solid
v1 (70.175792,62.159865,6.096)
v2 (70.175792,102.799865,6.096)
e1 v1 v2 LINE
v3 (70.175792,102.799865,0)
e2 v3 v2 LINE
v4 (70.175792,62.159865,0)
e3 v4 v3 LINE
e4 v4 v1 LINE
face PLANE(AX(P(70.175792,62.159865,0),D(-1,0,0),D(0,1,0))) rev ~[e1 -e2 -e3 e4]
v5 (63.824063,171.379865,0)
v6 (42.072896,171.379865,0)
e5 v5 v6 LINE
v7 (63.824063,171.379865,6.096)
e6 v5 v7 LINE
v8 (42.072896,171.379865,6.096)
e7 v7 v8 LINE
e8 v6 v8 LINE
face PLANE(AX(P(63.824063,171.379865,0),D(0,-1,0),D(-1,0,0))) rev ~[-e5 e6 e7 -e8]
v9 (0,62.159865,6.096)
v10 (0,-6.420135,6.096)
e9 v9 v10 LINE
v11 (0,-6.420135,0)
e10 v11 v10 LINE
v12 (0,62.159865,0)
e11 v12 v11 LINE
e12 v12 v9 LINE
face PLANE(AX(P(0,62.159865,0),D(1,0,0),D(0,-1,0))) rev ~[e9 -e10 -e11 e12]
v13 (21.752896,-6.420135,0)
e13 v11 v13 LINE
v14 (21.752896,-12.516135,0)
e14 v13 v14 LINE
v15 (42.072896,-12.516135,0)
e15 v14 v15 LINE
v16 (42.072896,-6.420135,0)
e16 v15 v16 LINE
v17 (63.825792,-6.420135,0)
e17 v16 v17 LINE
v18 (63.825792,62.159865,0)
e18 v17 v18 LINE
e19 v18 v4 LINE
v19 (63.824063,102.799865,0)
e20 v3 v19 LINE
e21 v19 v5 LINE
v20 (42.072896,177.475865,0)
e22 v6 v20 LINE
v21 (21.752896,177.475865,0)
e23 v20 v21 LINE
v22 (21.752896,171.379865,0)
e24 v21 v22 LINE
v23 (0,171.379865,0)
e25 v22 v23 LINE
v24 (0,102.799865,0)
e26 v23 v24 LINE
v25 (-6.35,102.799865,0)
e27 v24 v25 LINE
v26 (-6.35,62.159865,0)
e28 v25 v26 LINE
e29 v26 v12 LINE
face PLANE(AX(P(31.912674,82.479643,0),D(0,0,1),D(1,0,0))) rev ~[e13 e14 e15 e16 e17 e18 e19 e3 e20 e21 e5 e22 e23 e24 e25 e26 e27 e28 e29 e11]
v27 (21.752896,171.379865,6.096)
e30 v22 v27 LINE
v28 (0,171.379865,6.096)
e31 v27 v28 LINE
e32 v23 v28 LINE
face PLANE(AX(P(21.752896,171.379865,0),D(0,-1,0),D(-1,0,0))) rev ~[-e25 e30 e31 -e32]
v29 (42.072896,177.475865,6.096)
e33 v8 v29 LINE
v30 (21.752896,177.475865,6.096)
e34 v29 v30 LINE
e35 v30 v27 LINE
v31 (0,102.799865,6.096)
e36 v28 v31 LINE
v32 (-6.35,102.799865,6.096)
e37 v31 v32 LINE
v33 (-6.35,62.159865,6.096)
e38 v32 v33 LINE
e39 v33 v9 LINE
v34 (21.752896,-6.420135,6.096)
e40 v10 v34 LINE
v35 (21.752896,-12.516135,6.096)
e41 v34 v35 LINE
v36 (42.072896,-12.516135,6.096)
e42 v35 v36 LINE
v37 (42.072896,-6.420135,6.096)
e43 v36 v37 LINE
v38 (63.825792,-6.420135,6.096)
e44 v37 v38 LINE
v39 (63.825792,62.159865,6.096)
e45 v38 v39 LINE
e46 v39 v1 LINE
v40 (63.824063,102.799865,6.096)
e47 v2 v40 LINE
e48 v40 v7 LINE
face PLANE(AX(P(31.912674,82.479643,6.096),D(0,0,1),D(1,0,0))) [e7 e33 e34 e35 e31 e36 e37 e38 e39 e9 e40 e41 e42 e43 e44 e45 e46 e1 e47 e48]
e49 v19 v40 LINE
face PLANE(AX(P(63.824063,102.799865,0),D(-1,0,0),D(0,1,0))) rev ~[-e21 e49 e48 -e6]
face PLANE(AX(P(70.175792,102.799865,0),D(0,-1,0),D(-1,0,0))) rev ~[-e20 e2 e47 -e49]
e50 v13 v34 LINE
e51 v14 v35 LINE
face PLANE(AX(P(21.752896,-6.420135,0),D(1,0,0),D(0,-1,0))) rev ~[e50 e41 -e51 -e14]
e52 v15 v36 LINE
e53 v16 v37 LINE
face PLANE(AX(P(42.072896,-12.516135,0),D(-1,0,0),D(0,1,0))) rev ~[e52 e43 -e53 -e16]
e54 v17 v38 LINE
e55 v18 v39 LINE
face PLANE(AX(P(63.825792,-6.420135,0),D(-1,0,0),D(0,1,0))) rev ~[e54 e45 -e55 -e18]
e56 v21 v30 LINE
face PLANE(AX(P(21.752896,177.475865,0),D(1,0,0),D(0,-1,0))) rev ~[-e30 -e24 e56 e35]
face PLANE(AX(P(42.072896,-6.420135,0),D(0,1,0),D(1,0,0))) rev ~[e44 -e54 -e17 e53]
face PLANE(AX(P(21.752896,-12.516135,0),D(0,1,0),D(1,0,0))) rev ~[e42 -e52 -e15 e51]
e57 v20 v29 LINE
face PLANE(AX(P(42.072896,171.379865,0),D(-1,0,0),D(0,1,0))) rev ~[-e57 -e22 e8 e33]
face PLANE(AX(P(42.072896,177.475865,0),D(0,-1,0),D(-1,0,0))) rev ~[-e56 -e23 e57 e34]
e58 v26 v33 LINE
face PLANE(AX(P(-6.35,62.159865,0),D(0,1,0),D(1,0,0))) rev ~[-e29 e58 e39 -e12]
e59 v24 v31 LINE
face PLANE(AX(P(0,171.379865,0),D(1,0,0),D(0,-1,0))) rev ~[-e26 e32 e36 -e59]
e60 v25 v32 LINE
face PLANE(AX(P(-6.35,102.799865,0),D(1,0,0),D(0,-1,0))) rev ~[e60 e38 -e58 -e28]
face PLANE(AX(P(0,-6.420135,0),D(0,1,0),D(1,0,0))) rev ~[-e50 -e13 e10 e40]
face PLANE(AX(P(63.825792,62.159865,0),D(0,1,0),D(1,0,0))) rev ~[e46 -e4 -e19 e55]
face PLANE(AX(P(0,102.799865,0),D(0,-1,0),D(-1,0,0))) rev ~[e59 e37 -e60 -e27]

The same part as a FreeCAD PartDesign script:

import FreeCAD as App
import Part
import Sketcher
Q = App.Units.Quantity

doc = App.newDocument("Part")
params = doc.addObject("Spreadsheet::Sheet", "Params")
for row, (alias, value) in enumerate([
    ("sketch1_width", "0.8 in"),
    ("sketch1_height", "1.6 in"),
    ("sketch1_height2", "2.7 in"),
    ("sketch1_width2", "0.25 in"),
    ("sketch1_height3", "0.24 in"),
    ("pad1_length", "0.24 in"),
], start=1):
    params.set(f"A{row}", alias)
    params.set(f"B{row}", "=" + value)
    params.setAlias(f"B{row}", alias)

body = doc.addObject("PartDesign::Body", "Body")

sketch1 = doc.addObject("Sketcher::SketchObject", "Sketch")
body.addObject(sketch1)
sketch1.AttachmentSupport = (doc.XY_Plane, [""])
sketch1.MapMode = "FlatFace"
sketch1.addGeometry(Part.LineSegment(App.Vector(0, 103, 0), App.Vector(-6, 103, 0)), False)
sketch1.addGeometry(Part.LineSegment(App.Vector(-6, 103, 0), App.Vector(-6, 62, 0)), False)
sketch1.addGeometry(Part.LineSegment(App.Vector(-6, 62, 0), App.Vector(0, 62, 0)), False)
sketch1.addGeometry(Part.LineSegment(App.Vector(0, 62, 0), App.Vector(0, -6, 0)), False)
sketch1.addGeometry(Part.LineSegment(App.Vector(0, -6, 0), App.Vector(22, -6, 0)), False)
sketch1.addGeometry(Part.LineSegment(App.Vector(22, -6, 0), App.Vector(22, -13, 0)), False)
sketch1.addGeometry(Part.LineSegment(App.Vector(22, -13, 0), App.Vector(42, -13, 0)), False)
sketch1.addGeometry(Part.LineSegment(App.Vector(42, -13, 0), App.Vector(42, -6, 0)), False)
sketch1.addGeometry(Part.LineSegment(App.Vector(42, -6, 0), App.Vector(64, -6, 0)), False)
sketch1.addGeometry(Part.LineSegment(App.Vector(64, -6, 0), App.Vector(64, 62, 0)), False)
sketch1.addGeometry(Part.LineSegment(App.Vector(64, 62, 0), App.Vector(70, 62, 0)), False)
sketch1.addGeometry(Part.LineSegment(App.Vector(70, 62, 0), App.Vector(70, 103, 0)), False)
sketch1.addGeometry(Part.LineSegment(App.Vector(70, 103, 0), App.Vector(64, 103, 0)), False)
sketch1.addGeometry(Part.LineSegment(App.Vector(64, 103, 0), App.Vector(64, 171, 0)), False)
sketch1.addGeometry(Part.LineSegment(App.Vector(64, 171, 0), App.Vector(42, 171, 0)), False)
sketch1.addGeometry(Part.LineSegment(App.Vector(42, 171, 0), App.Vector(42, 177, 0)), False)
sketch1.addGeometry(Part.LineSegment(App.Vector(42, 177, 0), App.Vector(22, 177, 0)), False)
sketch1.addGeometry(Part.LineSegment(App.Vector(22, 177, 0), App.Vector(22, 171, 0)), False)
sketch1.addGeometry(Part.LineSegment(App.Vector(22, 171, 0), App.Vector(0, 171, 0)), False)
sketch1.addGeometry(Part.LineSegment(App.Vector(0, 171, 0), App.Vector(0, 103, 0)), False)
sketch1.addConstraint(Sketcher.Constraint("Coincident", 0, 2, 1, 1))
sketch1.addConstraint(Sketcher.Constraint("Coincident", 1, 2, 2, 1))
sketch1.addConstraint(Sketcher.Constraint("Coincident", 2, 2, 3, 1))
sketch1.addConstraint(Sketcher.Constraint("Coincident", 3, 2, 4, 1))
sketch1.addConstraint(Sketcher.Constraint("Coincident", 4, 2, 5, 1))
sketch1.addConstraint(Sketcher.Constraint("Coincident", 5, 2, 6, 1))
sketch1.addConstraint(Sketcher.Constraint("Coincident", 6, 2, 7, 1))
sketch1.addConstraint(Sketcher.Constraint("Coincident", 7, 2, 8, 1))
sketch1.addConstraint(Sketcher.Constraint("Coincident", 8, 2, 9, 1))
sketch1.addConstraint(Sketcher.Constraint("Coincident", 9, 2, 10, 1))
sketch1.addConstraint(Sketcher.Constraint("Coincident", 10, 2, 11, 1))
sketch1.addConstraint(Sketcher.Constraint("Coincident", 11, 2, 12, 1))
sketch1.addConstraint(Sketcher.Constraint("Coincident", 12, 2, 13, 1))
sketch1.addConstraint(Sketcher.Constraint("Coincident", 13, 2, 14, 1))
sketch1.addConstraint(Sketcher.Constraint("Coincident", 14, 2, 15, 1))
sketch1.addConstraint(Sketcher.Constraint("Coincident", 15, 2, 16, 1))
sketch1.addConstraint(Sketcher.Constraint("Coincident", 16, 2, 17, 1))
sketch1.addConstraint(Sketcher.Constraint("Coincident", 17, 2, 18, 1))
sketch1.addConstraint(Sketcher.Constraint("Coincident", 18, 2, 19, 1))
sketch1.addConstraint(Sketcher.Constraint("Coincident", 19, 2, 0, 1))
sketch1.addConstraint(Sketcher.Constraint("Horizontal", 0))
sketch1.addConstraint(Sketcher.Constraint("Vertical", 1))
sketch1.addConstraint(Sketcher.Constraint("Horizontal", 2))
sketch1.addConstraint(Sketcher.Constraint("Vertical", 3))
sketch1.addConstraint(Sketcher.Constraint("Horizontal", 4))
sketch1.addConstraint(Sketcher.Constraint("Vertical", 5))
sketch1.addConstraint(Sketcher.Constraint("Horizontal", 6))
sketch1.addConstraint(Sketcher.Constraint("Vertical", 7))
sketch1.addConstraint(Sketcher.Constraint("Horizontal", 8))
sketch1.addConstraint(Sketcher.Constraint("Vertical", 9))
sketch1.addConstraint(Sketcher.Constraint("Horizontal", 10))
sketch1.addConstraint(Sketcher.Constraint("Vertical", 11))
sketch1.addConstraint(Sketcher.Constraint("Horizontal", 12))
sketch1.addConstraint(Sketcher.Constraint("Vertical", 13))
sketch1.addConstraint(Sketcher.Constraint("Horizontal", 14))
sketch1.addConstraint(Sketcher.Constraint("Vertical", 15))
sketch1.addConstraint(Sketcher.Constraint("Horizontal", 16))
sketch1.addConstraint(Sketcher.Constraint("Vertical", 17))
sketch1.addConstraint(Sketcher.Constraint("Horizontal", 18))
sketch1.addConstraint(Sketcher.Constraint("Vertical", 19))
sketch1.addConstraint(Sketcher.Constraint("PointOnObject", 2, 2, -2))
sketch1.addConstraint(Sketcher.Constraint("PointOnObject", 18, 2, -2))
sketch1.addConstraint(Sketcher.Constraint("Horizontal", 4, 2, 7, 2))
sketch1.addConstraint(Sketcher.Constraint("Horizontal", 2, 2, 9, 2))
sketch1.addConstraint(Sketcher.Constraint("Horizontal", 0, 2, 11, 2))
sketch1.addConstraint(Sketcher.Constraint("Horizontal", 14, 2, 17, 2))
sketch1.addConstraint(Sketcher.Constraint("Vertical", 7, 2, 14, 2))
sketch1.addConstraint(Sketcher.Constraint("Vertical", 5, 2, 16, 2))
sketch1.addConstraint(Sketcher.Constraint("Equal", 4, 8))
sketch1.addConstraint(Sketcher.Constraint("Equal", 2, 10))
sketch1.addConstraint(Sketcher.Constraint("Equal", 9, 13))
sketch1.addConstraint(Sketcher.Constraint("Equal", 7, 15))
sketch1.addConstraint(Sketcher.Constraint("DistanceX", 6, 1, 6, 2, Q("0.8 in")))
sketch1.addConstraint(Sketcher.Constraint("DistanceY", 1, 2, 1, 1, Q("1.6 in")))
sketch1.addConstraint(Sketcher.Constraint("DistanceY", 3, 2, 3, 1, Q("2.7 in")))
sketch1.addConstraint(Sketcher.Constraint("DistanceX", 0, 2, 0, 1, Q("0.25 in")))
sketch1.addConstraint(Sketcher.Constraint("DistanceY", 5, 2, 5, 1, Q("0.24 in")))
sketch1.addConstraint(Sketcher.Constraint("DistanceX", 12, 2, 12, 1, 6.351729))
sketch1.addConstraint(Sketcher.Constraint("DistanceX", 4, 1, 4, 2, 21.752896))
sketch1.addConstraint(Sketcher.Constraint("DistanceY", -1, 1, 0, 2, 102.799865))
sketch1.setExpression("Constraints[52]", "Params.sketch1_width")
sketch1.setExpression("Constraints[53]", "Params.sketch1_height")
sketch1.setExpression("Constraints[54]", "Params.sketch1_height2")
sketch1.setExpression("Constraints[55]", "Params.sketch1_width2")
sketch1.setExpression("Constraints[56]", "Params.sketch1_height3")
pad1 = doc.addObject("PartDesign::Pad", "Pad")
body.addObject(pad1)
pad1.Profile = sketch1
pad1.setExpression("Length", "Params.pad1_length")

doc.recompute()
